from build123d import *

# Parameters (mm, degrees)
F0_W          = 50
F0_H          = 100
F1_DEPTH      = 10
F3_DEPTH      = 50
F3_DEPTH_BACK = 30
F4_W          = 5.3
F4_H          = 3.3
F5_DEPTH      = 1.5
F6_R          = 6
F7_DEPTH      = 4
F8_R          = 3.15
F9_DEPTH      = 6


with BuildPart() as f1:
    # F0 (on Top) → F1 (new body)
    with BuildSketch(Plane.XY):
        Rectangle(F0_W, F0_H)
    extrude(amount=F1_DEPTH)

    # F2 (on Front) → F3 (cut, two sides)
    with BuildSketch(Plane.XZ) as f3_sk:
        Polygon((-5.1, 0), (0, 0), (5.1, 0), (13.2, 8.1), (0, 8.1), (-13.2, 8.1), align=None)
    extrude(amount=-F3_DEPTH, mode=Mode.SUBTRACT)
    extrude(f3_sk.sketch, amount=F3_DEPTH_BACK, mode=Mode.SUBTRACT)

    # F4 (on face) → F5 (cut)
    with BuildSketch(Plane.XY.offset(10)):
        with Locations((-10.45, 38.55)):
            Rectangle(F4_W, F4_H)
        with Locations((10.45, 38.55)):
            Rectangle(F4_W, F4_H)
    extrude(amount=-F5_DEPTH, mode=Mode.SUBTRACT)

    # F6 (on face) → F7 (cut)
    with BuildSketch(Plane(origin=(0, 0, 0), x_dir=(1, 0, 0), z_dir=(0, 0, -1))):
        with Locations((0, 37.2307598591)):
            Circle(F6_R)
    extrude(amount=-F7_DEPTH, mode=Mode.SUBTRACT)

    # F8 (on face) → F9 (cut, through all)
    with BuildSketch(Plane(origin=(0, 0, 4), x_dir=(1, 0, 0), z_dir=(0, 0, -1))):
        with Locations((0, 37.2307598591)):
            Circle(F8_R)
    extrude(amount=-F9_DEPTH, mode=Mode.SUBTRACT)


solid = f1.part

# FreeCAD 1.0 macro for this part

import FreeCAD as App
import Part
import Sketcher
Q = App.Units.Quantity


def add_polygon(sketch, points):
    """Adds a closed chain of lines whose ends are joined by coincident constraints."""
    first, n = sketch.GeometryCount, len(points)
    for a, b in zip(points, points[1:] + points[:1]):
        sketch.addGeometry(Part.LineSegment(App.Vector(*a, 0), App.Vector(*b, 0)), False)
    for i in range(n):
        sketch.addConstraint(Sketcher.Constraint("Coincident", first + i, 2, first + (i + 1) % n, 1))

doc = App.newDocument("Part")
body = doc.addObject("PartDesign::Body", "Body")

# Sketch on XY plane
sketch1 = doc.addObject("Sketcher::SketchObject", "Sketch")
body.addObject(sketch1)
sketch1.AttachmentSupport = (doc.XY_Plane, [""])
sketch1.MapMode = "FlatFace"
add_polygon(sketch1, [(-25, 50), (-25, -50), (25, -50), (25, 50)])  # lines 0-3
sketch1.addConstraint([
    Sketcher.Constraint("Vertical", 0),
    Sketcher.Constraint("Horizontal", 1),
    Sketcher.Constraint("Vertical", 2),
    Sketcher.Constraint("Horizontal", 3),
    Sketcher.Constraint("Symmetric", 0, 2, 2, 2, -1, 1),
    Sketcher.Constraint("DistanceX", 1, 1, 1, 2, Q("50 mm")),
    Sketcher.Constraint("DistanceY", 0, 2, 0, 1, Q("100 mm")),
])
pad1 = doc.addObject("PartDesign::Pad", "Pad")
body.addObject(pad1)
pad1.Profile = sketch1
pad1.Length = 10

# Sketch on XZ plane
sketch2 = doc.addObject("Sketcher::SketchObject", "Sketch001")
body.addObject(sketch2)
sketch2.AttachmentSupport = (doc.XZ_Plane, [""])
sketch2.MapMode = "FlatFace"
add_polygon(sketch2, [(-5.1, 0), (5.1, 0), (13.2, 8.1), (-13.2, 8.1)])  # lines 0-3
sketch2.addConstraint([
    Sketcher.Constraint("Horizontal", 0),
    Sketcher.Constraint("Horizontal", 2),
    Sketcher.Constraint("Symmetric", 0, 2, 3, 2, -1, 1),
    Sketcher.Constraint("Perpendicular", 1, 3),
    Sketcher.Constraint("Equal", 1, 3),
    Sketcher.Constraint("DistanceX", 0, 1, 0, 2, Q("10.2 mm")),
    Sketcher.Constraint("DistanceX", 2, 2, 2, 1, Q("26.4 mm")),
])
pocket1 = doc.addObject("PartDesign::Pocket", "Pocket")
body.addObject(pocket1)
pocket1.Profile = sketch2
pocket1.Type = "TwoLengths"
pocket1.Length = 50
pocket1.Length2 = 30

# Sketch on XY plane
sketch3 = doc.addObject("Sketcher::SketchObject", "Sketch002")
body.addObject(sketch3)
sketch3.AttachmentSupport = (doc.XY_Plane, [""])
sketch3.MapMode = "FlatFace"
sketch3.AttachmentOffset = App.Placement(App.Vector(0, 0, 10), App.Rotation())
add_polygon(sketch3, [(-13.1, 40.2), (-13.1, 36.9), (-7.8, 36.9), (-7.8, 40.2)])  # lines 0-3
add_polygon(sketch3, [(7.8, 40.2), (7.8, 36.9), (13.1, 36.9), (13.1, 40.2)])  # lines 4-7
sketch3.addConstraint([
    Sketcher.Constraint("Vertical", 0),
    Sketcher.Constraint("Horizontal", 1),
    Sketcher.Constraint("Vertical", 2),
    Sketcher.Constraint("Horizontal", 3),
    Sketcher.Constraint("Vertical", 4),
    Sketcher.Constraint("Horizontal", 5),
    Sketcher.Constraint("Vertical", 6),
    Sketcher.Constraint("Horizontal", 7),
    Sketcher.Constraint("Symmetric", 1, 2, 4, 2, -2),
    Sketcher.Constraint("Symmetric", 3, 2, 6, 2, -2),
    Sketcher.Constraint("DistanceX", 1, 1, 1, 2, Q("5.3 mm")),
    Sketcher.Constraint("DistanceY", 0, 2, 0, 1, Q("3.3 mm")),
    Sketcher.Constraint("DistanceX", 0, 2, -1, 1, Q("13.1 mm")),
    Sketcher.Constraint("DistanceY", -1, 1, 0, 2, Q("36.9 mm")),
])
pocket2 = doc.addObject("PartDesign::Pocket", "Pocket001")
body.addObject(pocket2)
pocket2.Profile = sketch3
pocket2.Length = 1.5

# Sketch on XY plane
sketch4 = doc.addObject("Sketcher::SketchObject", "Sketch003")
body.addObject(sketch4)
sketch4.AttachmentSupport = (doc.XY_Plane, [""])
sketch4.MapMode = "FlatFace"
sketch4.addGeometry(Part.Circle(App.Vector(0, -37.23076, 0), App.Vector(0, 0, 1), 6), False)
sketch4.addConstraint([
    Sketcher.Constraint("PointOnObject", 0, 3, -2),
    Sketcher.Constraint("Diameter", 0, Q("12 mm")),
    Sketcher.Constraint("DistanceY", 0, 3, -1, 1, Q("37.23076 mm")),
])
pocket3 = doc.addObject("PartDesign::Pocket", "Pocket002")
body.addObject(pocket3)
pocket3.Profile = sketch4
pocket3.Length = 4
pocket3.Reversed = True

# Sketch on XY plane
sketch5 = doc.addObject("Sketcher::SketchObject", "Sketch004")
body.addObject(sketch5)
sketch5.AttachmentSupport = (doc.XY_Plane, [""])
sketch5.MapMode = "FlatFace"
sketch5.AttachmentOffset = App.Placement(App.Vector(0, 0, 4), App.Rotation())
sketch5.addGeometry(Part.Circle(App.Vector(0, -37.23076, 0), App.Vector(0, 0, 1), 3.15), False)
sketch5.addConstraint([
    Sketcher.Constraint("PointOnObject", 0, 3, -2),
    Sketcher.Constraint("Diameter", 0, Q("6.3 mm")),
    Sketcher.Constraint("DistanceY", 0, 3, -1, 1, Q("37.23076 mm")),
])
pocket4 = doc.addObject("PartDesign::Pocket", "Pocket003")
body.addObject(pocket4)
pocket4.Profile = sketch5
pocket4.Type = "ThroughAll"
pocket4.Reversed = True

doc.recompute()
